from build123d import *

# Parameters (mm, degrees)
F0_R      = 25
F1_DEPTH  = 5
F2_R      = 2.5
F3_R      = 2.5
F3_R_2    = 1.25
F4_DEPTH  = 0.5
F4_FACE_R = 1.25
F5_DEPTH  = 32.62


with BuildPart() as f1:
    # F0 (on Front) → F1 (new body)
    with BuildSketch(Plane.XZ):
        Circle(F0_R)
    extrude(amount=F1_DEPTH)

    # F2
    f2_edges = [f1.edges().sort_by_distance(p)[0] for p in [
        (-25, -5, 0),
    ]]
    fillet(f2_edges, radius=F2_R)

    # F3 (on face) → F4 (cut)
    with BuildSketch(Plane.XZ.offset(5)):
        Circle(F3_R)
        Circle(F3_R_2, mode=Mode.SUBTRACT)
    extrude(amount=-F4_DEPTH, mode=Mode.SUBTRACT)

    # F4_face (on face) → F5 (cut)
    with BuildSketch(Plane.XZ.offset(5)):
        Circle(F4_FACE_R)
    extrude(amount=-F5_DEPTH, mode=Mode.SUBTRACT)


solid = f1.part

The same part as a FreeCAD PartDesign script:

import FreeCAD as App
import Part
import Sketcher
from FreeCAD import Vector
Q = App.Units.Quantity


def edges_at(feature, points):
    """Names of the edges that pass closest to the given points."""
    edges = feature.Shape.Edges
    near = lambda p: min(range(len(edges)), key=lambda i: edges[i].distToShape(Part.Vertex(*p))[0])
    return sorted({f"Edge{near(p) + 1}" for p in points})

doc = App.newDocument("Part")
body = doc.addObject("PartDesign::Body", "Body")

# Sketch on XZ plane
sketch1 = body.newObject("Sketcher::SketchObject", "Sketch")
sketch1.AttachmentSupport = (doc.getObject("XZ_Plane"), [""])
sketch1.MapMode = "FlatFace"
sketch1.addGeometry(Part.Circle(Vector(0, 0, 0), Vector(0, 0, 1), 25), False)
sketch1.addConstraint([
    Sketcher.Constraint("Coincident", 0, 3, -1, 1),
    Sketcher.Constraint("Diameter", 0, Q("50 mm")),
])
pad1 = body.newObject("PartDesign::Pad", "Pad")
pad1.Profile = sketch1
pad1.Length = 5
doc.recompute()

fillet = body.newObject("PartDesign::Fillet", "Fillet")
fillet.Base = (pad1, edges_at(pad1, [(-25, -5, 0)]))
fillet.Radius = 2.5

# Sketch on XZ plane
sketch2 = body.newObject("Sketcher::SketchObject", "Sketch001")
sketch2.AttachmentSupport = (doc.getObject("XZ_Plane"), [""])
sketch2.MapMode = "FlatFace"
sketch2.AttachmentOffset = App.Placement(Vector(0, 0, 5), App.Rotation())
sketch2.addGeometry([
    Part.Circle(Vector(0, 0, 0), Vector(0, 0, 1), 2.5),
    Part.Circle(Vector(0, 0, 0), Vector(0, 0, 1), 1.2),
], False)
sketch2.addConstraint([
    Sketcher.Constraint("Coincident", 0, 3, -1, 1),
    Sketcher.Constraint("Coincident", 1, 3, -1, 1),
    Sketcher.Constraint("Diameter", 0, Q("5 mm")),
    Sketcher.Constraint("Diameter", 1, Q("2.5 mm")),
])
pocket1 = body.newObject("PartDesign::Pocket", "Pocket")
pocket1.Profile = sketch2
pocket1.Length = 0.5

# Sketch on XZ plane
sketch3 = body.newObject("Sketcher::SketchObject", "Sketch002")
sketch3.AttachmentSupport = (doc.getObject("XZ_Plane"), [""])
sketch3.MapMode = "FlatFace"
sketch3.AttachmentOffset = App.Placement(Vector(0, 0, 5), App.Rotation())
sketch3.addGeometry(Part.Circle(Vector(0, 0, 0), Vector(0, 0, 1), 1.2), False)
sketch3.addConstraint([
    Sketcher.Constraint("Coincident", 0, 3, -1, 1),
    Sketcher.Constraint("Diameter", 0, Q("2.5 mm")),
])
pocket2 = body.newObject("PartDesign::Pocket", "Pocket001")
pocket2.Profile = sketch3
pocket2.Length = 32.62

doc.recompute()
